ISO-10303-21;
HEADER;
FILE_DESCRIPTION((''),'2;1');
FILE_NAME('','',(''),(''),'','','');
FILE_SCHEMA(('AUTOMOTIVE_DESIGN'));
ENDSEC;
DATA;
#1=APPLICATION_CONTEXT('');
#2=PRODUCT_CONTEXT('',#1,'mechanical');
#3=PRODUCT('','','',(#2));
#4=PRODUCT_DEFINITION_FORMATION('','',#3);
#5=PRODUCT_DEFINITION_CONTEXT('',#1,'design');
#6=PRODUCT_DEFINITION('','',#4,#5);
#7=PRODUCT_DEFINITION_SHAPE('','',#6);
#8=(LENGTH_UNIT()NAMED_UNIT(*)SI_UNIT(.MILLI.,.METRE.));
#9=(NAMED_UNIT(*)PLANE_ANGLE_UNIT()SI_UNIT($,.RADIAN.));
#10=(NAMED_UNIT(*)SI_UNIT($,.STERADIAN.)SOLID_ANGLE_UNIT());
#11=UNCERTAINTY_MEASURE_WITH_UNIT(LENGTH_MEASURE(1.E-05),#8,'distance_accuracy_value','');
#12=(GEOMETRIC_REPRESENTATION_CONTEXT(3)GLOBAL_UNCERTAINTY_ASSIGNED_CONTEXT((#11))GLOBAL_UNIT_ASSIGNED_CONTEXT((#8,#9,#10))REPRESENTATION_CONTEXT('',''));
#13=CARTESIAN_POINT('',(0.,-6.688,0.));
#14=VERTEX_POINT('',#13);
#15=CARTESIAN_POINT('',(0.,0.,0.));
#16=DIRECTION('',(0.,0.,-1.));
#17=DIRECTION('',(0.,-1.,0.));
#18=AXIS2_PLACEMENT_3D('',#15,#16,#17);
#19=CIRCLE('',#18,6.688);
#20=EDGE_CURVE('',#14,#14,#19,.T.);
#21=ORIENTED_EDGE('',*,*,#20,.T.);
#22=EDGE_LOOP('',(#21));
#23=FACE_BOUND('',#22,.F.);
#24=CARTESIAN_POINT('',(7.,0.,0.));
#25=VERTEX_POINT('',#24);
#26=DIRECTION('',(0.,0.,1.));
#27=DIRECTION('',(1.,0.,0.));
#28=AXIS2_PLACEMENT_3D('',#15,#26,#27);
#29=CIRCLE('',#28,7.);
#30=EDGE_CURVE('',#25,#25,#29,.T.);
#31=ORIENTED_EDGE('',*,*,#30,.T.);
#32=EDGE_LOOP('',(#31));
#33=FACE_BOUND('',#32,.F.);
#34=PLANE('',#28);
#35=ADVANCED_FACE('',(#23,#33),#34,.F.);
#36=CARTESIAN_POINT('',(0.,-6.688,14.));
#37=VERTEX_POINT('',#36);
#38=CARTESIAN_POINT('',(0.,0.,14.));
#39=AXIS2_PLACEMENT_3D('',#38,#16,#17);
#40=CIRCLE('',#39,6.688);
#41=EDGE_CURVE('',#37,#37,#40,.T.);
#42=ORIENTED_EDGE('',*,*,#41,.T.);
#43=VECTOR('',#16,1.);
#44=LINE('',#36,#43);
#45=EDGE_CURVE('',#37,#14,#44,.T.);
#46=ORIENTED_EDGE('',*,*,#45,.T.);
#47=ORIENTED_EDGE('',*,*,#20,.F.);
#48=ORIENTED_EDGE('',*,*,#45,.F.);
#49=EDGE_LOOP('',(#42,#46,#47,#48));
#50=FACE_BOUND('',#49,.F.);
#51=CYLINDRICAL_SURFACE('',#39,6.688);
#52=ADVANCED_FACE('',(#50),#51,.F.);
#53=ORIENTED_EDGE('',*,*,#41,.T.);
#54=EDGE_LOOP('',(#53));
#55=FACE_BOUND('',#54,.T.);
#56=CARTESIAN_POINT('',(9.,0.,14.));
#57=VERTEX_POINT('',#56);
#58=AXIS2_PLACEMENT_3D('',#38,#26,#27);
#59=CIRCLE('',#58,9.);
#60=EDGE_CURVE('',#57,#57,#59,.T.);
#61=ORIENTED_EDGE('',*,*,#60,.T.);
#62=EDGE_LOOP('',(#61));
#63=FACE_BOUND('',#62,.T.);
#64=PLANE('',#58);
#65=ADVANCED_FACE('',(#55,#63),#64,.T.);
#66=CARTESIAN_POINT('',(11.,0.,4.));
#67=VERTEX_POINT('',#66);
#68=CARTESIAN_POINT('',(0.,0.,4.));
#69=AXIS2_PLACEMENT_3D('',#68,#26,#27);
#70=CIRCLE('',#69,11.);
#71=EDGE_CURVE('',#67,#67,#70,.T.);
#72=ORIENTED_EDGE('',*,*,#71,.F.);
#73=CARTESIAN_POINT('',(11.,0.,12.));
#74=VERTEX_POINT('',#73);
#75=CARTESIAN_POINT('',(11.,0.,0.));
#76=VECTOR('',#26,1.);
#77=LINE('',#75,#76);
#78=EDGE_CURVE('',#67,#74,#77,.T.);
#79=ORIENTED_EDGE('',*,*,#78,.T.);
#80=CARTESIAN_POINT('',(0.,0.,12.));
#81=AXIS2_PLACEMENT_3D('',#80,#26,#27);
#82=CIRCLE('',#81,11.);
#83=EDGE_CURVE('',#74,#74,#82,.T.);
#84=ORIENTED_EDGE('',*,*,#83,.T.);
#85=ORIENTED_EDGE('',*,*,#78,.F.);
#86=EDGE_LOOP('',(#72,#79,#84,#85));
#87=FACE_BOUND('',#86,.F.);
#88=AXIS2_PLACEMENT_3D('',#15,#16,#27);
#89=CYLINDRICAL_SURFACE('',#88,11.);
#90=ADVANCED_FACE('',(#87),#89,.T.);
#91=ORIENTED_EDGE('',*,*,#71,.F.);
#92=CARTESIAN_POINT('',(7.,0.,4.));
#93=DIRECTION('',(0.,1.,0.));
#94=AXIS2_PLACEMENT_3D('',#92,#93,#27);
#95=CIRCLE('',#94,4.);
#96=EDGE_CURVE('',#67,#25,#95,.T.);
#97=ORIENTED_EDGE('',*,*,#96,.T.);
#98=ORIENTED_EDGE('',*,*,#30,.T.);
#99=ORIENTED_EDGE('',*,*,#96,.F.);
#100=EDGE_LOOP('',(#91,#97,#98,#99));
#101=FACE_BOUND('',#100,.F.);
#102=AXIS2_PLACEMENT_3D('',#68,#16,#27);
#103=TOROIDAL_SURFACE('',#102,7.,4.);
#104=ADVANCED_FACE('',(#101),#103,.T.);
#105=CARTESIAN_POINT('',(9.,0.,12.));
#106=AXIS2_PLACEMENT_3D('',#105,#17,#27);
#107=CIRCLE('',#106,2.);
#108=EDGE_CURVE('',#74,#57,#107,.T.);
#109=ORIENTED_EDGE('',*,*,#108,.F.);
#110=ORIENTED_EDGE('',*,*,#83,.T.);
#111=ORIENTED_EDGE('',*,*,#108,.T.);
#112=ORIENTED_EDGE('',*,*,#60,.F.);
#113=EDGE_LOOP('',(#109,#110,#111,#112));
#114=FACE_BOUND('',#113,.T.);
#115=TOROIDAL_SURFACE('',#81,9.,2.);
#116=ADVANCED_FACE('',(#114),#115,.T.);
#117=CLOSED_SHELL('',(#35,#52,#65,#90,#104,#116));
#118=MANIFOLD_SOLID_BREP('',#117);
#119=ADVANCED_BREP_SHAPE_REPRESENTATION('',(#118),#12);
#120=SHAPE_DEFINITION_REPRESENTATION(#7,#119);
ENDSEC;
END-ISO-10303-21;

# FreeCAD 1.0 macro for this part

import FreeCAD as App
import Part
import Sketcher
from FreeCAD import Vector


def edges_at(feature, points):
    """Names of the edges that pass closest to the given points."""
    edges = feature.Shape.Edges
    near = lambda p: min(range(len(edges)), key=lambda i: edges[i].distToShape(Part.Vertex(*p))[0])
    return sorted({f"Edge{near(p) + 1}" for p in points})

doc = App.newDocument("Part")
body = doc.addObject("PartDesign::Body", "Body")

# Sketch on XY plane
sketch1 = body.newObject("Sketcher::SketchObject", "Sketch")
sketch1.AttachmentSupport = (doc.getObject("XY_Plane"), [""])
sketch1.MapMode = "FlatFace"
sketch1.addGeometry(Part.Circle(Vector(0, 0, 0), Vector(0, 0, 1), 11), False)
sketch1.addConstraint([
    Sketcher.Constraint("Coincident", 0, 3, -1, 1),
    Sketcher.Constraint("Diameter", 0, 22.0),
])
pad1 = body.newObject("PartDesign::Pad", "Pad")
pad1.Profile = sketch1
pad1.Length = 14
doc.recompute()

fillet = body.newObject("PartDesign::Fillet", "Fillet")
fillet.Base = (pad1, edges_at(pad1, [(-11, 0, 14)]))
fillet.Radius = 2
doc.recompute()

fillet2 = body.newObject("PartDesign::Fillet", "Fillet001")
fillet2.Base = (fillet, edges_at(fillet, [(-11, 0, 0)]))
fillet2.Radius = 4

# Sketch on XY plane
sketch2 = body.newObject("Sketcher::SketchObject", "Sketch001")
sketch2.AttachmentSupport = (doc.getObject("XY_Plane"), [""])
sketch2.MapMode = "FlatFace"
sketch2.AttachmentOffset = App.Placement(Vector(0, 0, 14), App.Rotation())
sketch2.addGeometry(Part.Circle(Vector(0, 0, 0), Vector(0, 0, 1), 7), False)
sketch2.addConstraint([
    Sketcher.Constraint("Coincident", 0, 3, -1, 1),
    Sketcher.Constraint("Diameter", 0, 13.376),
])
doc.recompute()
hole = body.newObject("PartDesign::Hole", "Hole")
hole.Profile = sketch2
hole.ThreadType = "None"
hole.Diameter = 13.376
hole.DepthType = "ThroughAll"

doc.recompute()
